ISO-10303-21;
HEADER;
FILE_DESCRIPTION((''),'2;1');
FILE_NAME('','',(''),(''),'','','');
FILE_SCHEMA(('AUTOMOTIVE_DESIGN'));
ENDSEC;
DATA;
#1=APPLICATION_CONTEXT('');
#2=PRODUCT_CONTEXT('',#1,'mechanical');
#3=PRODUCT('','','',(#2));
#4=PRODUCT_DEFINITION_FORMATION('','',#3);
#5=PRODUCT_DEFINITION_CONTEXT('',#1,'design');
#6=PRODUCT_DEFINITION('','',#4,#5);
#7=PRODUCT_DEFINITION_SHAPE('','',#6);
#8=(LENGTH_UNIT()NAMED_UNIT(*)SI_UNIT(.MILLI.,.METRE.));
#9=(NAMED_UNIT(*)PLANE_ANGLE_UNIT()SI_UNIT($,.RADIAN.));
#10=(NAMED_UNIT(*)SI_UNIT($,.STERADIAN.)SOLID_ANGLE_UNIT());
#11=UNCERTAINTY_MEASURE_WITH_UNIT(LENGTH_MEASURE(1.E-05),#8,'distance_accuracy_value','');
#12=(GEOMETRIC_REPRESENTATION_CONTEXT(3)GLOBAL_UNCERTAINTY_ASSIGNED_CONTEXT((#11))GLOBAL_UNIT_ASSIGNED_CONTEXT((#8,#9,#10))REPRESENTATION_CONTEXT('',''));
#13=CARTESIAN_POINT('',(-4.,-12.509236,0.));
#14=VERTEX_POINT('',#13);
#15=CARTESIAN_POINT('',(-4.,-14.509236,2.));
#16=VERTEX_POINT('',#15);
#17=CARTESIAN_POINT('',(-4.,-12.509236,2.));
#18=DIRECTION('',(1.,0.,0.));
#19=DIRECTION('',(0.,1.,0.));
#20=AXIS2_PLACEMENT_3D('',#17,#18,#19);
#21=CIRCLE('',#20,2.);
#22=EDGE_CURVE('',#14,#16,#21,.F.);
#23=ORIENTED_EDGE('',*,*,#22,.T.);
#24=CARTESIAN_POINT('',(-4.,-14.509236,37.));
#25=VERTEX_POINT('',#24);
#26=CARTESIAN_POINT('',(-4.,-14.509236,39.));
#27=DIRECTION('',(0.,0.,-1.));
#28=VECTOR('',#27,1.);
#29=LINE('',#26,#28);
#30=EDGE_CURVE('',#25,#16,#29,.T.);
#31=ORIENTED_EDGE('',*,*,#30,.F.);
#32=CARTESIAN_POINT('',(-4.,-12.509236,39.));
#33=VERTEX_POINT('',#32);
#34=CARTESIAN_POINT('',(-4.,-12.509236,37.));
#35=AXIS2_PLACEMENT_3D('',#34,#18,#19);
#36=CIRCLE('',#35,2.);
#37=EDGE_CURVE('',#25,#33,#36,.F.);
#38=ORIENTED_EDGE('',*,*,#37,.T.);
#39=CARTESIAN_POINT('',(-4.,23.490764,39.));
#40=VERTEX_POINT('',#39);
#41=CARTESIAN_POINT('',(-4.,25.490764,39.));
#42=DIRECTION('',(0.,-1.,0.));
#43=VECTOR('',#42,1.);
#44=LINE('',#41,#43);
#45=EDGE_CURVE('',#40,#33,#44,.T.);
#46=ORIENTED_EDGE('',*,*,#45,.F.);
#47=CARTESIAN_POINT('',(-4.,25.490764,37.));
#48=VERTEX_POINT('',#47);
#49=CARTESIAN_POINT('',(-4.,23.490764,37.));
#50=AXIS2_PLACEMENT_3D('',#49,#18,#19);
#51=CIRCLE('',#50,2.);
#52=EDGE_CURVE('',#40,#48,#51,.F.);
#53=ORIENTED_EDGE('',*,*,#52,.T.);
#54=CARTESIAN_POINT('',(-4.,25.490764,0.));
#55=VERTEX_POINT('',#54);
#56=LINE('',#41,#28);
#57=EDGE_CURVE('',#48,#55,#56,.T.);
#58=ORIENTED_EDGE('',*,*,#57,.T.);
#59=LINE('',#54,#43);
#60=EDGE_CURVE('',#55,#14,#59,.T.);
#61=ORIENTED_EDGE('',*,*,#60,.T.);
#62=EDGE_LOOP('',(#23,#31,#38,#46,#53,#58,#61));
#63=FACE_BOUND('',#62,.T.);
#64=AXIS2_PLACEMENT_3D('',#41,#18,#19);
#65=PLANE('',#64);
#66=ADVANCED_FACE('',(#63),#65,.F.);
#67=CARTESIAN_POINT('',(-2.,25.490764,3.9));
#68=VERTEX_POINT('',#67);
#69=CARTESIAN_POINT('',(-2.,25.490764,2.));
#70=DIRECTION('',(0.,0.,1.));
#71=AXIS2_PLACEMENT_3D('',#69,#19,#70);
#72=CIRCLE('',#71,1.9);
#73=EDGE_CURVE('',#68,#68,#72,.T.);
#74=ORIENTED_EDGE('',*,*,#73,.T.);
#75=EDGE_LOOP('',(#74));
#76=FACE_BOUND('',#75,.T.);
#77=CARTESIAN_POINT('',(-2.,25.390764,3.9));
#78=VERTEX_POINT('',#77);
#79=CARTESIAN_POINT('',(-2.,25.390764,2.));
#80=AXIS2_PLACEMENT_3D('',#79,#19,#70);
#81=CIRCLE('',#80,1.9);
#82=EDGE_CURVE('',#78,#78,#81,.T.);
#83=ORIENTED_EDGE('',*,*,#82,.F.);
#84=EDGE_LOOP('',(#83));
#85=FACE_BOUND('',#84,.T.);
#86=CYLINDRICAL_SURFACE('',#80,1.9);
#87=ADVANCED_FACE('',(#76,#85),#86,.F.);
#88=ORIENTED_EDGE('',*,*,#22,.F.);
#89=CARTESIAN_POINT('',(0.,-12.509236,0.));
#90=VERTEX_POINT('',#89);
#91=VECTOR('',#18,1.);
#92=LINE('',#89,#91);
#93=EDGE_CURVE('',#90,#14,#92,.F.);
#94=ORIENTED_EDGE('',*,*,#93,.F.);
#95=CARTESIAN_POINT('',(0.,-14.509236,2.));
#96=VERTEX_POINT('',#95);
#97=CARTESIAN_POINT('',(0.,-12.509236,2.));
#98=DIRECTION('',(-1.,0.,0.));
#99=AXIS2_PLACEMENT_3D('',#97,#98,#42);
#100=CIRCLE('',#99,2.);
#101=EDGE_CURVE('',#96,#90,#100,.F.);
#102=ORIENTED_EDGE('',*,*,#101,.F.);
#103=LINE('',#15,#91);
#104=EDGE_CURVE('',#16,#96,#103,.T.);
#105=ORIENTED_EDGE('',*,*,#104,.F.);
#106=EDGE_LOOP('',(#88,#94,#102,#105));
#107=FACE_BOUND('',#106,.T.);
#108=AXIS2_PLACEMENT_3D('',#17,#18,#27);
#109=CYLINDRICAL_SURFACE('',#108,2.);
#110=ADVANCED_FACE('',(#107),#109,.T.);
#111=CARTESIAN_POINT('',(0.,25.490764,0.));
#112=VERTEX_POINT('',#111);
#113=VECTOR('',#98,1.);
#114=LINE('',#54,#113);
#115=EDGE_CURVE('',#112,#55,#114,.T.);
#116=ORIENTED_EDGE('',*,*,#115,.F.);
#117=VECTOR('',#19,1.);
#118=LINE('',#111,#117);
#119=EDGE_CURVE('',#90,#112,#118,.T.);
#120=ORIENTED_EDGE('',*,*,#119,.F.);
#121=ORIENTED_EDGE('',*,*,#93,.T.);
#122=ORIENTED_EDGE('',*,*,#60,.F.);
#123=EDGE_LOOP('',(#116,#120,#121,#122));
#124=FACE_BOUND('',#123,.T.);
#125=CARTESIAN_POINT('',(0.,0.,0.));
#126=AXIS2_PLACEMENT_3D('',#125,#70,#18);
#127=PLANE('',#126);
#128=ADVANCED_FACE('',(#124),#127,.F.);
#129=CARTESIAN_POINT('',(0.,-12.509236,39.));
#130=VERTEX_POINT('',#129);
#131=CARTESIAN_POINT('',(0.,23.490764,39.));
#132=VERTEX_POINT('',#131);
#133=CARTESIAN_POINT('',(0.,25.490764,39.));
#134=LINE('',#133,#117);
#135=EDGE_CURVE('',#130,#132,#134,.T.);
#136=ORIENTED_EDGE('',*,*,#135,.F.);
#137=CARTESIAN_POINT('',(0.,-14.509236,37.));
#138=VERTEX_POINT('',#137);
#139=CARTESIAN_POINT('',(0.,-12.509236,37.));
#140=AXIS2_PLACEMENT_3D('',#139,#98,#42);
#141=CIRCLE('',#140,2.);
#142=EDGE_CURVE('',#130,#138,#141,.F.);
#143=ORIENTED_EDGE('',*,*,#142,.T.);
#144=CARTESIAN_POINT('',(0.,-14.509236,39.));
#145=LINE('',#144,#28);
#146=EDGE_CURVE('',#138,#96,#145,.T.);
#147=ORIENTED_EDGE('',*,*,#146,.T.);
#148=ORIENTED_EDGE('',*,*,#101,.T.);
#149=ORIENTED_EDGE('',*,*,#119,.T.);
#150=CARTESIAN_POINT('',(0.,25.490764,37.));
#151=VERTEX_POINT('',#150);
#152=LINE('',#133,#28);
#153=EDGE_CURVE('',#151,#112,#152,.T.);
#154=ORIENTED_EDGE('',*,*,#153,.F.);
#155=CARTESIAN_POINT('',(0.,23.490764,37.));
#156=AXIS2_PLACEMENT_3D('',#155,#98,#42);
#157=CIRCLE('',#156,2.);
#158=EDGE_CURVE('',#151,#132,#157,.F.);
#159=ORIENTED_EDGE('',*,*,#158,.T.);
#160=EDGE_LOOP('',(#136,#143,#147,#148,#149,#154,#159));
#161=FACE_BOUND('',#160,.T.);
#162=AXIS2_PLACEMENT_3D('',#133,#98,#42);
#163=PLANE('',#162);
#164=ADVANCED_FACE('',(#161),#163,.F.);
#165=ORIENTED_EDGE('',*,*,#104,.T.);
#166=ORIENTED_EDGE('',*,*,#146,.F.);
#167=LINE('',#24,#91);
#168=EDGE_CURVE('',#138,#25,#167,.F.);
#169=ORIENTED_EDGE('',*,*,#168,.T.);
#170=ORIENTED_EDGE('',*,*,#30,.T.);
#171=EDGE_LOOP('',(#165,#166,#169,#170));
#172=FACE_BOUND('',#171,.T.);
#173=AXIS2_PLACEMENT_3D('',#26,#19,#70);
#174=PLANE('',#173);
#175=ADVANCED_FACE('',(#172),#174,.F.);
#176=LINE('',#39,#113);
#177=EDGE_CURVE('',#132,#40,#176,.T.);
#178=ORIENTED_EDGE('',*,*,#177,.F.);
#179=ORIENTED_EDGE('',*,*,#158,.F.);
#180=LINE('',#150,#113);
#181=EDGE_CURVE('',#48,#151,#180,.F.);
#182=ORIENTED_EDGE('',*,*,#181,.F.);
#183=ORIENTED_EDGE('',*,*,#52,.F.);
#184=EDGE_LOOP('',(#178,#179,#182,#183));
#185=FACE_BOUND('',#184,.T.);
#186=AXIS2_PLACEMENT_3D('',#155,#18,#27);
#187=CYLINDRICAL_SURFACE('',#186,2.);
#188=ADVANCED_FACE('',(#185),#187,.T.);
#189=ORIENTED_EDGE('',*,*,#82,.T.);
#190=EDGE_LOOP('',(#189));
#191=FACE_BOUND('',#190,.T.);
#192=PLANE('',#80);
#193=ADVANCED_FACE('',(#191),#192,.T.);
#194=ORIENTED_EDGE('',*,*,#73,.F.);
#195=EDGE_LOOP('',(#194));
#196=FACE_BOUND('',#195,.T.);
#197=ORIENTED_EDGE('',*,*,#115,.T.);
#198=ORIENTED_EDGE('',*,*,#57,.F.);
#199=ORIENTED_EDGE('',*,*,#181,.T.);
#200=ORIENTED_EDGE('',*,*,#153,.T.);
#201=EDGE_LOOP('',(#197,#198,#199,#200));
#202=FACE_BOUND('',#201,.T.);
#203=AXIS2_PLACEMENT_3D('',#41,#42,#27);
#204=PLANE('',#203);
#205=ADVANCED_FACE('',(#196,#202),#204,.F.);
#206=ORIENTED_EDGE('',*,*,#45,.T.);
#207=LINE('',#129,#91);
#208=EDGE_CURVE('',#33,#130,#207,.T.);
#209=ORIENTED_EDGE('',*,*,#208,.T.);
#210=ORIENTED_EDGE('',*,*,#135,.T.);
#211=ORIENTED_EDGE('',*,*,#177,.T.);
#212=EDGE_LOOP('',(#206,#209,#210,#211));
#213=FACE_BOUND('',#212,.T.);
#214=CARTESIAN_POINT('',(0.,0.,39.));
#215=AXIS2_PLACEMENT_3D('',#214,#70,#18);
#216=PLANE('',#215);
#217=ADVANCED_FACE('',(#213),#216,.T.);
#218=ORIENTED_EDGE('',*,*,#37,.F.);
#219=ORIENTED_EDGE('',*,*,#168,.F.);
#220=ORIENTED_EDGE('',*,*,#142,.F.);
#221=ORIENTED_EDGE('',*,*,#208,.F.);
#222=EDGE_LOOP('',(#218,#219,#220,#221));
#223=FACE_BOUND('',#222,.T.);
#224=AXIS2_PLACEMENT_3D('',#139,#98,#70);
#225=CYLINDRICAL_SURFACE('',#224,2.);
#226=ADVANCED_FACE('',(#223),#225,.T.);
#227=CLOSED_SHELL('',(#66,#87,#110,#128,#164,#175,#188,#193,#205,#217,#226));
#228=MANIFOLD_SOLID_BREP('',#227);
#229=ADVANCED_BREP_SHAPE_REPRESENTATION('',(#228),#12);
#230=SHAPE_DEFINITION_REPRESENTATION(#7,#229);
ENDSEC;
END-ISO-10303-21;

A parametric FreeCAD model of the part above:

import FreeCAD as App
import Part
import Sketcher

V = App.Vector
Q = App.Units.Quantity


def edges_at(feature, points):
    """Names of the edges that pass closest to the given points."""
    edges = feature.Shape.Edges
    near = lambda p: min(range(len(edges)), key=lambda i: edges[i].distToShape(Part.Vertex(*p))[0])
    return sorted({f"Edge{near(p) + 1}" for p in points})

doc = App.newDocument("Part")
params = doc.addObject("Spreadsheet::Sheet", "Params")
for row, (alias, value) in enumerate([
    ("sketch1_width", "4 mm"),
    ("sketch1_height", "40 mm"),
    ("pad1_length", "39 mm"),
    ("fillet_radius", "2 mm"),
    ("fillet2_radius", "2 mm"),
    ("sketch2_diameter", "3.8 mm"),
    ("pocket1_length", "0.1 mm"),
], start=1):
    params.set(f"A{row}", alias)
    params.set(f"B{row}", "=" + value)
    params.setAlias(f"B{row}", alias)

body = doc.addObject("PartDesign::Body", "Body")

# Sketch on XY plane
sketch1 = doc.addObject("Sketcher::SketchObject", "Sketch")
body.addObject(sketch1)
sketch1.AttachmentSupport = (doc.XY_Plane, [""])
sketch1.MapMode = "FlatFace"
sketch1.addGeometry(Part.LineSegment(V(-4, 25.5, 0), V(-4, -14.5, 0)), False)
sketch1.addGeometry(Part.LineSegment(V(-4, -14.5, 0), V(0, -14.5, 0)), False)
sketch1.addGeometry(Part.LineSegment(V(0, -14.5, 0), V(0, 25.5, 0)), False)
sketch1.addGeometry(Part.LineSegment(V(0, 25.5, 0), V(-4, 25.5, 0)), False)
sketch1.addConstraint(Sketcher.Constraint("Coincident", 0, 2, 1, 1))
sketch1.addConstraint(Sketcher.Constraint("Coincident", 1, 2, 2, 1))
sketch1.addConstraint(Sketcher.Constraint("Coincident", 2, 2, 3, 1))
sketch1.addConstraint(Sketcher.Constraint("Coincident", 3, 2, 0, 1))
sketch1.addConstraint(Sketcher.Constraint("Vertical", 0))
sketch1.addConstraint(Sketcher.Constraint("Horizontal", 1))
sketch1.addConstraint(Sketcher.Constraint("Vertical", 2))
sketch1.addConstraint(Sketcher.Constraint("Horizontal", 3))
sketch1.addConstraint(Sketcher.Constraint("PointOnObject", 1, 2, -2))
sketch1.addConstraint(Sketcher.Constraint("DistanceX", 1, 1, 1, 2, Q("4 mm")))
sketch1.addConstraint(Sketcher.Constraint("DistanceY", 0, 2, 0, 1, Q("40 mm")))
sketch1.addConstraint(Sketcher.Constraint("DistanceY", 0, 2, -1, 1, Q("14.509236 mm")))
sketch1.setExpression("Constraints[9]", "Params.sketch1_width")
sketch1.setExpression("Constraints[10]", "Params.sketch1_height")
pad1 = doc.addObject("PartDesign::Pad", "Pad")
body.addObject(pad1)
pad1.Profile = sketch1
pad1.setExpression("Length", "Params.pad1_length")
doc.recompute()

fillet = doc.addObject("PartDesign::Fillet", "Fillet")
body.addObject(fillet)
fillet.Base = (pad1, edges_at(pad1, [(-2, 25.491, 39)]))
fillet.setExpression("Radius", "Params.fillet_radius")
doc.recompute()

fillet2 = doc.addObject("PartDesign::Fillet", "Fillet001")
body.addObject(fillet2)
fillet2.Base = (fillet, edges_at(fillet, [(-2, -14.509, 0), (-2, -14.509, 39)]))
fillet2.setExpression("Radius", "Params.fillet2_radius")

# Sketch on XZ plane
sketch2 = doc.addObject("Sketcher::SketchObject", "Sketch001")
body.addObject(sketch2)
sketch2.AttachmentSupport = (doc.XZ_Plane, [""])
sketch2.MapMode = "FlatFace"
sketch2.AttachmentOffset = App.Placement(V(0, 0, -25.490764), App.Rotation())
sketch2.addGeometry(Part.Circle(V(-2, 2, 0), V(0, 0, 1), 1.9), False)
sketch2.addConstraint(Sketcher.Constraint("Diameter", 0, Q("3.8 mm")))
sketch2.addConstraint(Sketcher.Constraint("DistanceX", 0, 3, -1, 1, Q("2 mm")))
sketch2.addConstraint(Sketcher.Constraint("DistanceY", -1, 1, 0, 3, Q("2 mm")))
sketch2.setExpression("Constraints[0]", "Params.sketch2_diameter")
pocket1 = doc.addObject("PartDesign::Pocket", "Pocket")
body.addObject(pocket1)
pocket1.Profile = sketch2
pocket1.setExpression("Length", "Params.pocket1_length")
pocket1.Reversed = True

doc.recompute()
